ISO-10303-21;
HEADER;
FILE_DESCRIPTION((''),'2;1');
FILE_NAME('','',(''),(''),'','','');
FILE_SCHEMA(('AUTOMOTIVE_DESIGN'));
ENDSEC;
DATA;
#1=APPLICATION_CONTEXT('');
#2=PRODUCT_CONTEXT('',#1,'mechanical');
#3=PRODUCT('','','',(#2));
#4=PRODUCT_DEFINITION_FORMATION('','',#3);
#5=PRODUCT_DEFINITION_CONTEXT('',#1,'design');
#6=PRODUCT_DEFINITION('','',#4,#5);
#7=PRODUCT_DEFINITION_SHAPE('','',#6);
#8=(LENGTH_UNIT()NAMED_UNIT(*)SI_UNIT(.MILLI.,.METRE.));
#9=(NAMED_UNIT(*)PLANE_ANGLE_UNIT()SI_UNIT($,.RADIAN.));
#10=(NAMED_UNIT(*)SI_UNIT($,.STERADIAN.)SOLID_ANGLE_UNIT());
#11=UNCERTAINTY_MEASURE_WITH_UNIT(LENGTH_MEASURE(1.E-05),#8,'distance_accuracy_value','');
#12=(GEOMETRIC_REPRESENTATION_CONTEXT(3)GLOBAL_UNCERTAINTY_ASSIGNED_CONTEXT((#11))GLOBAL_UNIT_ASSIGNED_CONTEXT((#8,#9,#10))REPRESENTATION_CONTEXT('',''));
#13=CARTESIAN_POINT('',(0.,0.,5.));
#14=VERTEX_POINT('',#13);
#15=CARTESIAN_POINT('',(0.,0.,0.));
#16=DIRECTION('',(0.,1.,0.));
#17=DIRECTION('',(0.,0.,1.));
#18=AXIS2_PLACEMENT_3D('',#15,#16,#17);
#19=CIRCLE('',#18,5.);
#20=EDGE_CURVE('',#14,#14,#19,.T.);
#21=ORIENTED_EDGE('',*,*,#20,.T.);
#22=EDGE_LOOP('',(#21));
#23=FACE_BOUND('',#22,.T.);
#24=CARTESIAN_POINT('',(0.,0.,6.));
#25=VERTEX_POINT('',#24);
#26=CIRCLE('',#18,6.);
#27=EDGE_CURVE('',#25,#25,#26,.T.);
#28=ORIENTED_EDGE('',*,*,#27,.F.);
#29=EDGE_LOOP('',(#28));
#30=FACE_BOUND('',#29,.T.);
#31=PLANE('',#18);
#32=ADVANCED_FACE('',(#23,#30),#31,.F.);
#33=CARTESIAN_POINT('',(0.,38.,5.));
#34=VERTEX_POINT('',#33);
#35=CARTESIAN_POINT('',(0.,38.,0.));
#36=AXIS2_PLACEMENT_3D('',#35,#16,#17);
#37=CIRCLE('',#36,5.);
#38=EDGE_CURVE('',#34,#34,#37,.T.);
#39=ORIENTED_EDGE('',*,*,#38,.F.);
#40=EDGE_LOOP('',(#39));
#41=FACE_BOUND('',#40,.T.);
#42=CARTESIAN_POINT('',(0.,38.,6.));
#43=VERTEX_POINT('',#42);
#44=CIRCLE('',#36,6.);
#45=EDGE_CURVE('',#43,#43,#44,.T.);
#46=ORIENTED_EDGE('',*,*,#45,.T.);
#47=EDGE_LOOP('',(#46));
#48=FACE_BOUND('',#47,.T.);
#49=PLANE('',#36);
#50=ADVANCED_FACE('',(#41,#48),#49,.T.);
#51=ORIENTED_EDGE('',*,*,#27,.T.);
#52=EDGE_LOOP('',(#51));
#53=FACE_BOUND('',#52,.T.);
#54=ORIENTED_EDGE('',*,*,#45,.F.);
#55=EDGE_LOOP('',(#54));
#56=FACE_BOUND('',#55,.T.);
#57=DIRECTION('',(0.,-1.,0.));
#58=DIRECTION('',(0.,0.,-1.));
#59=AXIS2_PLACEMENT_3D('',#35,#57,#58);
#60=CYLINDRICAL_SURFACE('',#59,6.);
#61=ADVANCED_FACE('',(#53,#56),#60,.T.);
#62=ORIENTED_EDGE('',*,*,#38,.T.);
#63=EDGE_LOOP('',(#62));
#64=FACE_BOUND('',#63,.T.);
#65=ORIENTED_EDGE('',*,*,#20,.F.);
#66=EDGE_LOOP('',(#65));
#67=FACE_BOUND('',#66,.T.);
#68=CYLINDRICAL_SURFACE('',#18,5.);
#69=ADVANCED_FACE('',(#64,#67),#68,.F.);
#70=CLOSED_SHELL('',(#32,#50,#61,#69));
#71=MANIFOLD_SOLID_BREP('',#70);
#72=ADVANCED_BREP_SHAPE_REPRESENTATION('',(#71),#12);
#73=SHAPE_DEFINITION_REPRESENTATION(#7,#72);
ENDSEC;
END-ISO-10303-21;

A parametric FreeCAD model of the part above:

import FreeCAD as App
import Part
import Sketcher

doc = App.newDocument("Part")
body = doc.addObject("PartDesign::Body", "Body")

# Sketch on XZ plane
sketch1 = doc.addObject("Sketcher::SketchObject", "Sketch")
body.addObject(sketch1)
sketch1.AttachmentSupport = (doc.XZ_Plane, [""])
sketch1.MapMode = "FlatFace"
sketch1.addGeometry(Part.Circle(App.Vector(0, 0, 0), App.Vector(0, 0, 1), 6), False)
sketch1.addConstraint([
    Sketcher.Constraint("Coincident", 0, 3, -1, 1),
    Sketcher.Constraint("Diameter", 0, 12.0),
])
pad1 = doc.addObject("PartDesign::Pad", "Pad")
body.addObject(pad1)
pad1.Profile = sketch1
pad1.Length = 38
pad1.Reversed = True

# Sketch on XZ plane
sketch2 = doc.addObject("Sketcher::SketchObject", "Sketch001")
body.addObject(sketch2)
sketch2.AttachmentSupport = (doc.XZ_Plane, [""])
sketch2.MapMode = "FlatFace"
sketch2.AttachmentOffset = App.Placement(App.Vector(0, 0, -38), App.Rotation())
sketch2.addGeometry(Part.Circle(App.Vector(0, 0, 0), App.Vector(0, 0, 1), 5), False)
sketch2.addConstraint([
    Sketcher.Constraint("Coincident", 0, 3, -1, 1),
    Sketcher.Constraint("Diameter", 0, 10.0),
])
pocket1 = doc.addObject("PartDesign::Pocket", "Pocket")
body.addObject(pocket1)
pocket1.Profile = sketch2
pocket1.Type = "ThroughAll"
pocket1.Reversed = True

doc.recompute()
